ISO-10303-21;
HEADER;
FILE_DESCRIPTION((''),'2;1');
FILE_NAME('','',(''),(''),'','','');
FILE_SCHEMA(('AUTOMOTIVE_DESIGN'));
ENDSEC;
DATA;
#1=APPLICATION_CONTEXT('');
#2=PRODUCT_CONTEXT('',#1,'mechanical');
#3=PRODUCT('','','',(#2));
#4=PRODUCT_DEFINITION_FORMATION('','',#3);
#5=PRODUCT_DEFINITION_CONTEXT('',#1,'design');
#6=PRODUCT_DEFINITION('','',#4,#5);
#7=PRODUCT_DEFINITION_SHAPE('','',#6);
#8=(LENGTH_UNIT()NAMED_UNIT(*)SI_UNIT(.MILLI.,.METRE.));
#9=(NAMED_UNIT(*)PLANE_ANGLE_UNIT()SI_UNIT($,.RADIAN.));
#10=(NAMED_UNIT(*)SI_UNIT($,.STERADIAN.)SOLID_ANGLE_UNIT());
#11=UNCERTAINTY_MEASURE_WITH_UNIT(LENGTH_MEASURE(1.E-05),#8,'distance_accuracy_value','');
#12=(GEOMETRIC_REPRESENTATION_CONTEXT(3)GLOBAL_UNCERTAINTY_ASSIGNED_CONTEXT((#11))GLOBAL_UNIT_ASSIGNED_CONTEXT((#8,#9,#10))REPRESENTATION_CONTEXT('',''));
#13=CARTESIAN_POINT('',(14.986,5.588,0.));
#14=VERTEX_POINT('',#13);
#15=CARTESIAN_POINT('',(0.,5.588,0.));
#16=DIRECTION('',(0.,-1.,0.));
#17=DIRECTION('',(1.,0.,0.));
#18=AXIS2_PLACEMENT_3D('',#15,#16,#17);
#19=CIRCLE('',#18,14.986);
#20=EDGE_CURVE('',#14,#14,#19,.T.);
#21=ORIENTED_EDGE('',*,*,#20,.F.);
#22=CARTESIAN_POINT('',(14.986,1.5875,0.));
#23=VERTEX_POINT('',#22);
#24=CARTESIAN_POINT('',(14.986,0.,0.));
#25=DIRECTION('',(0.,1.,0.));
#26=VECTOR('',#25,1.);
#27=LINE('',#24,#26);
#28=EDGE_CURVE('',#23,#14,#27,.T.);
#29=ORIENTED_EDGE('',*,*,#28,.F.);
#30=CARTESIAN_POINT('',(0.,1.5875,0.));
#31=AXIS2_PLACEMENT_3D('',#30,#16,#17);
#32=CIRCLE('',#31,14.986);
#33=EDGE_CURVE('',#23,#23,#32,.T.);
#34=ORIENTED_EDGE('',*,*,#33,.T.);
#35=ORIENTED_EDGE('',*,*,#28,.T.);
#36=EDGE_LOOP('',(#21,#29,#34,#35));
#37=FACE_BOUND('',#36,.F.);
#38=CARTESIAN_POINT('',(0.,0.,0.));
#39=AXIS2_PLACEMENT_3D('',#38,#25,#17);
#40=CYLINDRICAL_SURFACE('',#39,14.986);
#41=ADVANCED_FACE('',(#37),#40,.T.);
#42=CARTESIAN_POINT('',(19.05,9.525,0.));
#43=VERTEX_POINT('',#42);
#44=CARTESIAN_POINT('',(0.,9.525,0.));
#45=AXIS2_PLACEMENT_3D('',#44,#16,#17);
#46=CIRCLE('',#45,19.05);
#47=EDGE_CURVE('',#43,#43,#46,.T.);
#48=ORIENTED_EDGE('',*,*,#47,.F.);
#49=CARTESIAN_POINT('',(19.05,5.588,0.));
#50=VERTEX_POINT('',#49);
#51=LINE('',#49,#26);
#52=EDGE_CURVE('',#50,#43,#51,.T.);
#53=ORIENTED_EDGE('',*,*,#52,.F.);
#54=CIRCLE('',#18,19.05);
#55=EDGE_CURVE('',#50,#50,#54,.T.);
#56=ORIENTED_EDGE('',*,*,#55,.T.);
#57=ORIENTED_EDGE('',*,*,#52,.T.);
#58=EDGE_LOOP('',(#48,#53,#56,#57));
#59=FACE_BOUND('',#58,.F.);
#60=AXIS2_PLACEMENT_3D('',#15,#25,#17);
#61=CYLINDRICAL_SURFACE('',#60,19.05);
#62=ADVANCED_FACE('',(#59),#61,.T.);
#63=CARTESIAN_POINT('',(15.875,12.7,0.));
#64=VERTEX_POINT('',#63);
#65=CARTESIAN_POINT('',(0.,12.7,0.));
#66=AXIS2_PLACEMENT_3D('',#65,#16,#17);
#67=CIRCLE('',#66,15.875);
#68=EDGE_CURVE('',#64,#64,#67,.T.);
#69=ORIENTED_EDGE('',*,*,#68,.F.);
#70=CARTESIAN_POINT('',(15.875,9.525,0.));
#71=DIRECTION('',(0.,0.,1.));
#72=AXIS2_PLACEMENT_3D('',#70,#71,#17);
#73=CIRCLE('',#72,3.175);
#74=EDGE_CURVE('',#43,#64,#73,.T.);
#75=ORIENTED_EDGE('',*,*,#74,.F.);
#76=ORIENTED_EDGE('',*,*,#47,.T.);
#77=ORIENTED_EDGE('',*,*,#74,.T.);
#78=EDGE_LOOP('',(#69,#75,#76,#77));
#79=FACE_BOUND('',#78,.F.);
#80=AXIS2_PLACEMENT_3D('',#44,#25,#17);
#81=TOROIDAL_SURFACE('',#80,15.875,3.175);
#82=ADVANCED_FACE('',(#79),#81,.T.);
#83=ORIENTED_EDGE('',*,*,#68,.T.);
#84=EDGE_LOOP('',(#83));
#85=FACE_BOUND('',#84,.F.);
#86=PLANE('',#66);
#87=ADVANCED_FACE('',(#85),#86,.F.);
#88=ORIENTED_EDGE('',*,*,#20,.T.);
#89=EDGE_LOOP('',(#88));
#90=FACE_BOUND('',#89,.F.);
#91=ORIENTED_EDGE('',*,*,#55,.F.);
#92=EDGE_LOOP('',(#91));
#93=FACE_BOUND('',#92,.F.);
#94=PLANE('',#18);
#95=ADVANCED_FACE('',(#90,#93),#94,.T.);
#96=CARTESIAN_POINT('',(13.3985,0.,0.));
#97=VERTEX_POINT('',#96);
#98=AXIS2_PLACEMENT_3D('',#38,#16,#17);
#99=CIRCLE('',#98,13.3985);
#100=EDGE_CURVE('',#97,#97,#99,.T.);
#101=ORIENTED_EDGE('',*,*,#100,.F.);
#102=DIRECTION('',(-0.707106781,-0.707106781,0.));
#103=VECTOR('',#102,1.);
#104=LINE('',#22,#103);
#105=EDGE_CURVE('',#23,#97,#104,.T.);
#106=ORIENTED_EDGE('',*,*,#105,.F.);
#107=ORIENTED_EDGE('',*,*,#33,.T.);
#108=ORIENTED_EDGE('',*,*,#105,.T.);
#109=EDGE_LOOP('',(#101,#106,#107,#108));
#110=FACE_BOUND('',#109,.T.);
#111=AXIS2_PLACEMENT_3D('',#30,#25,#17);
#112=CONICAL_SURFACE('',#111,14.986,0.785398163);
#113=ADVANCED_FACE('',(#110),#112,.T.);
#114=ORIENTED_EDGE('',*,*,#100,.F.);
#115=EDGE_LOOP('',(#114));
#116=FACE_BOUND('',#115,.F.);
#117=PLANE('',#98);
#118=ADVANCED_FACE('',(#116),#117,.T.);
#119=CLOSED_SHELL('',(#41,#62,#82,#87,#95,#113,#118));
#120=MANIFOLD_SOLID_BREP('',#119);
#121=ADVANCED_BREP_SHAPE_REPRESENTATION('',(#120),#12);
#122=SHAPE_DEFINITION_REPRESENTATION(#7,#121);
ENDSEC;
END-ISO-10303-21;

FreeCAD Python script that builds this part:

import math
import FreeCAD as App
import Part
import Sketcher
from FreeCAD import Vector
Q = App.Units.Quantity


def edges_at(feature, points):
    """Names of the edges that pass closest to the given points."""
    edges = feature.Shape.Edges
    near = lambda p: min(range(len(edges)), key=lambda i: edges[i].distToShape(Part.Vertex(*p))[0])
    return sorted({f"Edge{near(p) + 1}" for p in points})

doc = App.newDocument("Part")
body = doc.addObject("PartDesign::Body", "Body")

sketch1 = doc.addObject("Sketcher::SketchObject", "Sketch")
body.addObject(sketch1)
sketch1.AttachmentSupport = (doc.XY_Plane, [""])
sketch1.MapMode = "FlatFace"
sketch1.addGeometry(Part.LineSegment(Vector(0, 0, 0), Vector(15, 0, 0)), False)
sketch1.addGeometry(Part.LineSegment(Vector(15, 0, 0), Vector(15, 5.6, 0)), False)
sketch1.addGeometry(Part.LineSegment(Vector(15, 5.6, 0), Vector(19.1, 5.6, 0)), False)
sketch1.addGeometry(Part.LineSegment(Vector(19.1, 5.6, 0), Vector(19.1, 9.5, 0)), False)
sketch1.addGeometry(Part.ArcOfCircle(Part.Circle(Vector(15.9, 9.5, 0), Vector(0, 0, 1), 3.2), math.radians(0), math.radians(90)), False)
sketch1.addGeometry(Part.LineSegment(Vector(15.9, 12.7, 0), Vector(0, 12.7, 0)), False)
sketch1.addGeometry(Part.LineSegment(Vector(0, 12.7, 0), Vector(0, 0, 0)), False)
sketch1.addConstraint(Sketcher.Constraint("Coincident", 0, 2, 1, 1))
sketch1.addConstraint(Sketcher.Constraint("Coincident", 1, 2, 2, 1))
sketch1.addConstraint(Sketcher.Constraint("Coincident", 2, 2, 3, 1))
sketch1.addConstraint(Sketcher.Constraint("Tangent", 3, 2, 4, 1))
sketch1.addConstraint(Sketcher.Constraint("Tangent", 4, 2, 5, 1))
sketch1.addConstraint(Sketcher.Constraint("Coincident", 5, 2, 6, 1))
sketch1.addConstraint(Sketcher.Constraint("Coincident", 6, 2, 0, 1))
sketch1.addConstraint(Sketcher.Constraint("Horizontal", 0))
sketch1.addConstraint(Sketcher.Constraint("Vertical", 1))
sketch1.addConstraint(Sketcher.Constraint("Horizontal", 2))
sketch1.addConstraint(Sketcher.Constraint("Vertical", 3))
sketch1.addConstraint(Sketcher.Constraint("Horizontal", 5))
sketch1.addConstraint(Sketcher.Constraint("Vertical", 6))
sketch1.addConstraint(Sketcher.Constraint("Coincident", 6, 2, -1, 1))
sketch1.addConstraint(Sketcher.Constraint("DistanceY", 6, 2, 6, 1, Q("0.5 in")))
sketch1.addConstraint(Sketcher.Constraint("Radius", 4, Q("0.125 in")))
sketch1.addConstraint(Sketcher.Constraint("DistanceX", 0, 1, 0, 2, Q("0.59 in")))
sketch1.addConstraint(Sketcher.Constraint("DistanceY", 1, 1, 1, 2, Q("0.22 in")))
sketch1.addConstraint(Sketcher.Constraint("DistanceX", -1, 1, 2, 2, Q("0.75 in")))
revolution = doc.addObject("PartDesign::Revolution", "Revolution")
body.addObject(revolution)
revolution.Profile = sketch1
revolution.ReferenceAxis = (sketch1, ["V_Axis"])
revolution.Angle = 360
doc.recompute()

chamfer = doc.addObject("PartDesign::Chamfer", "Chamfer")
body.addObject(chamfer)
chamfer.Base = (revolution, edges_at(revolution, [(-14.986, 0, 0)]))
chamfer.Size = Q("0.0625 in")

doc.recompute()
